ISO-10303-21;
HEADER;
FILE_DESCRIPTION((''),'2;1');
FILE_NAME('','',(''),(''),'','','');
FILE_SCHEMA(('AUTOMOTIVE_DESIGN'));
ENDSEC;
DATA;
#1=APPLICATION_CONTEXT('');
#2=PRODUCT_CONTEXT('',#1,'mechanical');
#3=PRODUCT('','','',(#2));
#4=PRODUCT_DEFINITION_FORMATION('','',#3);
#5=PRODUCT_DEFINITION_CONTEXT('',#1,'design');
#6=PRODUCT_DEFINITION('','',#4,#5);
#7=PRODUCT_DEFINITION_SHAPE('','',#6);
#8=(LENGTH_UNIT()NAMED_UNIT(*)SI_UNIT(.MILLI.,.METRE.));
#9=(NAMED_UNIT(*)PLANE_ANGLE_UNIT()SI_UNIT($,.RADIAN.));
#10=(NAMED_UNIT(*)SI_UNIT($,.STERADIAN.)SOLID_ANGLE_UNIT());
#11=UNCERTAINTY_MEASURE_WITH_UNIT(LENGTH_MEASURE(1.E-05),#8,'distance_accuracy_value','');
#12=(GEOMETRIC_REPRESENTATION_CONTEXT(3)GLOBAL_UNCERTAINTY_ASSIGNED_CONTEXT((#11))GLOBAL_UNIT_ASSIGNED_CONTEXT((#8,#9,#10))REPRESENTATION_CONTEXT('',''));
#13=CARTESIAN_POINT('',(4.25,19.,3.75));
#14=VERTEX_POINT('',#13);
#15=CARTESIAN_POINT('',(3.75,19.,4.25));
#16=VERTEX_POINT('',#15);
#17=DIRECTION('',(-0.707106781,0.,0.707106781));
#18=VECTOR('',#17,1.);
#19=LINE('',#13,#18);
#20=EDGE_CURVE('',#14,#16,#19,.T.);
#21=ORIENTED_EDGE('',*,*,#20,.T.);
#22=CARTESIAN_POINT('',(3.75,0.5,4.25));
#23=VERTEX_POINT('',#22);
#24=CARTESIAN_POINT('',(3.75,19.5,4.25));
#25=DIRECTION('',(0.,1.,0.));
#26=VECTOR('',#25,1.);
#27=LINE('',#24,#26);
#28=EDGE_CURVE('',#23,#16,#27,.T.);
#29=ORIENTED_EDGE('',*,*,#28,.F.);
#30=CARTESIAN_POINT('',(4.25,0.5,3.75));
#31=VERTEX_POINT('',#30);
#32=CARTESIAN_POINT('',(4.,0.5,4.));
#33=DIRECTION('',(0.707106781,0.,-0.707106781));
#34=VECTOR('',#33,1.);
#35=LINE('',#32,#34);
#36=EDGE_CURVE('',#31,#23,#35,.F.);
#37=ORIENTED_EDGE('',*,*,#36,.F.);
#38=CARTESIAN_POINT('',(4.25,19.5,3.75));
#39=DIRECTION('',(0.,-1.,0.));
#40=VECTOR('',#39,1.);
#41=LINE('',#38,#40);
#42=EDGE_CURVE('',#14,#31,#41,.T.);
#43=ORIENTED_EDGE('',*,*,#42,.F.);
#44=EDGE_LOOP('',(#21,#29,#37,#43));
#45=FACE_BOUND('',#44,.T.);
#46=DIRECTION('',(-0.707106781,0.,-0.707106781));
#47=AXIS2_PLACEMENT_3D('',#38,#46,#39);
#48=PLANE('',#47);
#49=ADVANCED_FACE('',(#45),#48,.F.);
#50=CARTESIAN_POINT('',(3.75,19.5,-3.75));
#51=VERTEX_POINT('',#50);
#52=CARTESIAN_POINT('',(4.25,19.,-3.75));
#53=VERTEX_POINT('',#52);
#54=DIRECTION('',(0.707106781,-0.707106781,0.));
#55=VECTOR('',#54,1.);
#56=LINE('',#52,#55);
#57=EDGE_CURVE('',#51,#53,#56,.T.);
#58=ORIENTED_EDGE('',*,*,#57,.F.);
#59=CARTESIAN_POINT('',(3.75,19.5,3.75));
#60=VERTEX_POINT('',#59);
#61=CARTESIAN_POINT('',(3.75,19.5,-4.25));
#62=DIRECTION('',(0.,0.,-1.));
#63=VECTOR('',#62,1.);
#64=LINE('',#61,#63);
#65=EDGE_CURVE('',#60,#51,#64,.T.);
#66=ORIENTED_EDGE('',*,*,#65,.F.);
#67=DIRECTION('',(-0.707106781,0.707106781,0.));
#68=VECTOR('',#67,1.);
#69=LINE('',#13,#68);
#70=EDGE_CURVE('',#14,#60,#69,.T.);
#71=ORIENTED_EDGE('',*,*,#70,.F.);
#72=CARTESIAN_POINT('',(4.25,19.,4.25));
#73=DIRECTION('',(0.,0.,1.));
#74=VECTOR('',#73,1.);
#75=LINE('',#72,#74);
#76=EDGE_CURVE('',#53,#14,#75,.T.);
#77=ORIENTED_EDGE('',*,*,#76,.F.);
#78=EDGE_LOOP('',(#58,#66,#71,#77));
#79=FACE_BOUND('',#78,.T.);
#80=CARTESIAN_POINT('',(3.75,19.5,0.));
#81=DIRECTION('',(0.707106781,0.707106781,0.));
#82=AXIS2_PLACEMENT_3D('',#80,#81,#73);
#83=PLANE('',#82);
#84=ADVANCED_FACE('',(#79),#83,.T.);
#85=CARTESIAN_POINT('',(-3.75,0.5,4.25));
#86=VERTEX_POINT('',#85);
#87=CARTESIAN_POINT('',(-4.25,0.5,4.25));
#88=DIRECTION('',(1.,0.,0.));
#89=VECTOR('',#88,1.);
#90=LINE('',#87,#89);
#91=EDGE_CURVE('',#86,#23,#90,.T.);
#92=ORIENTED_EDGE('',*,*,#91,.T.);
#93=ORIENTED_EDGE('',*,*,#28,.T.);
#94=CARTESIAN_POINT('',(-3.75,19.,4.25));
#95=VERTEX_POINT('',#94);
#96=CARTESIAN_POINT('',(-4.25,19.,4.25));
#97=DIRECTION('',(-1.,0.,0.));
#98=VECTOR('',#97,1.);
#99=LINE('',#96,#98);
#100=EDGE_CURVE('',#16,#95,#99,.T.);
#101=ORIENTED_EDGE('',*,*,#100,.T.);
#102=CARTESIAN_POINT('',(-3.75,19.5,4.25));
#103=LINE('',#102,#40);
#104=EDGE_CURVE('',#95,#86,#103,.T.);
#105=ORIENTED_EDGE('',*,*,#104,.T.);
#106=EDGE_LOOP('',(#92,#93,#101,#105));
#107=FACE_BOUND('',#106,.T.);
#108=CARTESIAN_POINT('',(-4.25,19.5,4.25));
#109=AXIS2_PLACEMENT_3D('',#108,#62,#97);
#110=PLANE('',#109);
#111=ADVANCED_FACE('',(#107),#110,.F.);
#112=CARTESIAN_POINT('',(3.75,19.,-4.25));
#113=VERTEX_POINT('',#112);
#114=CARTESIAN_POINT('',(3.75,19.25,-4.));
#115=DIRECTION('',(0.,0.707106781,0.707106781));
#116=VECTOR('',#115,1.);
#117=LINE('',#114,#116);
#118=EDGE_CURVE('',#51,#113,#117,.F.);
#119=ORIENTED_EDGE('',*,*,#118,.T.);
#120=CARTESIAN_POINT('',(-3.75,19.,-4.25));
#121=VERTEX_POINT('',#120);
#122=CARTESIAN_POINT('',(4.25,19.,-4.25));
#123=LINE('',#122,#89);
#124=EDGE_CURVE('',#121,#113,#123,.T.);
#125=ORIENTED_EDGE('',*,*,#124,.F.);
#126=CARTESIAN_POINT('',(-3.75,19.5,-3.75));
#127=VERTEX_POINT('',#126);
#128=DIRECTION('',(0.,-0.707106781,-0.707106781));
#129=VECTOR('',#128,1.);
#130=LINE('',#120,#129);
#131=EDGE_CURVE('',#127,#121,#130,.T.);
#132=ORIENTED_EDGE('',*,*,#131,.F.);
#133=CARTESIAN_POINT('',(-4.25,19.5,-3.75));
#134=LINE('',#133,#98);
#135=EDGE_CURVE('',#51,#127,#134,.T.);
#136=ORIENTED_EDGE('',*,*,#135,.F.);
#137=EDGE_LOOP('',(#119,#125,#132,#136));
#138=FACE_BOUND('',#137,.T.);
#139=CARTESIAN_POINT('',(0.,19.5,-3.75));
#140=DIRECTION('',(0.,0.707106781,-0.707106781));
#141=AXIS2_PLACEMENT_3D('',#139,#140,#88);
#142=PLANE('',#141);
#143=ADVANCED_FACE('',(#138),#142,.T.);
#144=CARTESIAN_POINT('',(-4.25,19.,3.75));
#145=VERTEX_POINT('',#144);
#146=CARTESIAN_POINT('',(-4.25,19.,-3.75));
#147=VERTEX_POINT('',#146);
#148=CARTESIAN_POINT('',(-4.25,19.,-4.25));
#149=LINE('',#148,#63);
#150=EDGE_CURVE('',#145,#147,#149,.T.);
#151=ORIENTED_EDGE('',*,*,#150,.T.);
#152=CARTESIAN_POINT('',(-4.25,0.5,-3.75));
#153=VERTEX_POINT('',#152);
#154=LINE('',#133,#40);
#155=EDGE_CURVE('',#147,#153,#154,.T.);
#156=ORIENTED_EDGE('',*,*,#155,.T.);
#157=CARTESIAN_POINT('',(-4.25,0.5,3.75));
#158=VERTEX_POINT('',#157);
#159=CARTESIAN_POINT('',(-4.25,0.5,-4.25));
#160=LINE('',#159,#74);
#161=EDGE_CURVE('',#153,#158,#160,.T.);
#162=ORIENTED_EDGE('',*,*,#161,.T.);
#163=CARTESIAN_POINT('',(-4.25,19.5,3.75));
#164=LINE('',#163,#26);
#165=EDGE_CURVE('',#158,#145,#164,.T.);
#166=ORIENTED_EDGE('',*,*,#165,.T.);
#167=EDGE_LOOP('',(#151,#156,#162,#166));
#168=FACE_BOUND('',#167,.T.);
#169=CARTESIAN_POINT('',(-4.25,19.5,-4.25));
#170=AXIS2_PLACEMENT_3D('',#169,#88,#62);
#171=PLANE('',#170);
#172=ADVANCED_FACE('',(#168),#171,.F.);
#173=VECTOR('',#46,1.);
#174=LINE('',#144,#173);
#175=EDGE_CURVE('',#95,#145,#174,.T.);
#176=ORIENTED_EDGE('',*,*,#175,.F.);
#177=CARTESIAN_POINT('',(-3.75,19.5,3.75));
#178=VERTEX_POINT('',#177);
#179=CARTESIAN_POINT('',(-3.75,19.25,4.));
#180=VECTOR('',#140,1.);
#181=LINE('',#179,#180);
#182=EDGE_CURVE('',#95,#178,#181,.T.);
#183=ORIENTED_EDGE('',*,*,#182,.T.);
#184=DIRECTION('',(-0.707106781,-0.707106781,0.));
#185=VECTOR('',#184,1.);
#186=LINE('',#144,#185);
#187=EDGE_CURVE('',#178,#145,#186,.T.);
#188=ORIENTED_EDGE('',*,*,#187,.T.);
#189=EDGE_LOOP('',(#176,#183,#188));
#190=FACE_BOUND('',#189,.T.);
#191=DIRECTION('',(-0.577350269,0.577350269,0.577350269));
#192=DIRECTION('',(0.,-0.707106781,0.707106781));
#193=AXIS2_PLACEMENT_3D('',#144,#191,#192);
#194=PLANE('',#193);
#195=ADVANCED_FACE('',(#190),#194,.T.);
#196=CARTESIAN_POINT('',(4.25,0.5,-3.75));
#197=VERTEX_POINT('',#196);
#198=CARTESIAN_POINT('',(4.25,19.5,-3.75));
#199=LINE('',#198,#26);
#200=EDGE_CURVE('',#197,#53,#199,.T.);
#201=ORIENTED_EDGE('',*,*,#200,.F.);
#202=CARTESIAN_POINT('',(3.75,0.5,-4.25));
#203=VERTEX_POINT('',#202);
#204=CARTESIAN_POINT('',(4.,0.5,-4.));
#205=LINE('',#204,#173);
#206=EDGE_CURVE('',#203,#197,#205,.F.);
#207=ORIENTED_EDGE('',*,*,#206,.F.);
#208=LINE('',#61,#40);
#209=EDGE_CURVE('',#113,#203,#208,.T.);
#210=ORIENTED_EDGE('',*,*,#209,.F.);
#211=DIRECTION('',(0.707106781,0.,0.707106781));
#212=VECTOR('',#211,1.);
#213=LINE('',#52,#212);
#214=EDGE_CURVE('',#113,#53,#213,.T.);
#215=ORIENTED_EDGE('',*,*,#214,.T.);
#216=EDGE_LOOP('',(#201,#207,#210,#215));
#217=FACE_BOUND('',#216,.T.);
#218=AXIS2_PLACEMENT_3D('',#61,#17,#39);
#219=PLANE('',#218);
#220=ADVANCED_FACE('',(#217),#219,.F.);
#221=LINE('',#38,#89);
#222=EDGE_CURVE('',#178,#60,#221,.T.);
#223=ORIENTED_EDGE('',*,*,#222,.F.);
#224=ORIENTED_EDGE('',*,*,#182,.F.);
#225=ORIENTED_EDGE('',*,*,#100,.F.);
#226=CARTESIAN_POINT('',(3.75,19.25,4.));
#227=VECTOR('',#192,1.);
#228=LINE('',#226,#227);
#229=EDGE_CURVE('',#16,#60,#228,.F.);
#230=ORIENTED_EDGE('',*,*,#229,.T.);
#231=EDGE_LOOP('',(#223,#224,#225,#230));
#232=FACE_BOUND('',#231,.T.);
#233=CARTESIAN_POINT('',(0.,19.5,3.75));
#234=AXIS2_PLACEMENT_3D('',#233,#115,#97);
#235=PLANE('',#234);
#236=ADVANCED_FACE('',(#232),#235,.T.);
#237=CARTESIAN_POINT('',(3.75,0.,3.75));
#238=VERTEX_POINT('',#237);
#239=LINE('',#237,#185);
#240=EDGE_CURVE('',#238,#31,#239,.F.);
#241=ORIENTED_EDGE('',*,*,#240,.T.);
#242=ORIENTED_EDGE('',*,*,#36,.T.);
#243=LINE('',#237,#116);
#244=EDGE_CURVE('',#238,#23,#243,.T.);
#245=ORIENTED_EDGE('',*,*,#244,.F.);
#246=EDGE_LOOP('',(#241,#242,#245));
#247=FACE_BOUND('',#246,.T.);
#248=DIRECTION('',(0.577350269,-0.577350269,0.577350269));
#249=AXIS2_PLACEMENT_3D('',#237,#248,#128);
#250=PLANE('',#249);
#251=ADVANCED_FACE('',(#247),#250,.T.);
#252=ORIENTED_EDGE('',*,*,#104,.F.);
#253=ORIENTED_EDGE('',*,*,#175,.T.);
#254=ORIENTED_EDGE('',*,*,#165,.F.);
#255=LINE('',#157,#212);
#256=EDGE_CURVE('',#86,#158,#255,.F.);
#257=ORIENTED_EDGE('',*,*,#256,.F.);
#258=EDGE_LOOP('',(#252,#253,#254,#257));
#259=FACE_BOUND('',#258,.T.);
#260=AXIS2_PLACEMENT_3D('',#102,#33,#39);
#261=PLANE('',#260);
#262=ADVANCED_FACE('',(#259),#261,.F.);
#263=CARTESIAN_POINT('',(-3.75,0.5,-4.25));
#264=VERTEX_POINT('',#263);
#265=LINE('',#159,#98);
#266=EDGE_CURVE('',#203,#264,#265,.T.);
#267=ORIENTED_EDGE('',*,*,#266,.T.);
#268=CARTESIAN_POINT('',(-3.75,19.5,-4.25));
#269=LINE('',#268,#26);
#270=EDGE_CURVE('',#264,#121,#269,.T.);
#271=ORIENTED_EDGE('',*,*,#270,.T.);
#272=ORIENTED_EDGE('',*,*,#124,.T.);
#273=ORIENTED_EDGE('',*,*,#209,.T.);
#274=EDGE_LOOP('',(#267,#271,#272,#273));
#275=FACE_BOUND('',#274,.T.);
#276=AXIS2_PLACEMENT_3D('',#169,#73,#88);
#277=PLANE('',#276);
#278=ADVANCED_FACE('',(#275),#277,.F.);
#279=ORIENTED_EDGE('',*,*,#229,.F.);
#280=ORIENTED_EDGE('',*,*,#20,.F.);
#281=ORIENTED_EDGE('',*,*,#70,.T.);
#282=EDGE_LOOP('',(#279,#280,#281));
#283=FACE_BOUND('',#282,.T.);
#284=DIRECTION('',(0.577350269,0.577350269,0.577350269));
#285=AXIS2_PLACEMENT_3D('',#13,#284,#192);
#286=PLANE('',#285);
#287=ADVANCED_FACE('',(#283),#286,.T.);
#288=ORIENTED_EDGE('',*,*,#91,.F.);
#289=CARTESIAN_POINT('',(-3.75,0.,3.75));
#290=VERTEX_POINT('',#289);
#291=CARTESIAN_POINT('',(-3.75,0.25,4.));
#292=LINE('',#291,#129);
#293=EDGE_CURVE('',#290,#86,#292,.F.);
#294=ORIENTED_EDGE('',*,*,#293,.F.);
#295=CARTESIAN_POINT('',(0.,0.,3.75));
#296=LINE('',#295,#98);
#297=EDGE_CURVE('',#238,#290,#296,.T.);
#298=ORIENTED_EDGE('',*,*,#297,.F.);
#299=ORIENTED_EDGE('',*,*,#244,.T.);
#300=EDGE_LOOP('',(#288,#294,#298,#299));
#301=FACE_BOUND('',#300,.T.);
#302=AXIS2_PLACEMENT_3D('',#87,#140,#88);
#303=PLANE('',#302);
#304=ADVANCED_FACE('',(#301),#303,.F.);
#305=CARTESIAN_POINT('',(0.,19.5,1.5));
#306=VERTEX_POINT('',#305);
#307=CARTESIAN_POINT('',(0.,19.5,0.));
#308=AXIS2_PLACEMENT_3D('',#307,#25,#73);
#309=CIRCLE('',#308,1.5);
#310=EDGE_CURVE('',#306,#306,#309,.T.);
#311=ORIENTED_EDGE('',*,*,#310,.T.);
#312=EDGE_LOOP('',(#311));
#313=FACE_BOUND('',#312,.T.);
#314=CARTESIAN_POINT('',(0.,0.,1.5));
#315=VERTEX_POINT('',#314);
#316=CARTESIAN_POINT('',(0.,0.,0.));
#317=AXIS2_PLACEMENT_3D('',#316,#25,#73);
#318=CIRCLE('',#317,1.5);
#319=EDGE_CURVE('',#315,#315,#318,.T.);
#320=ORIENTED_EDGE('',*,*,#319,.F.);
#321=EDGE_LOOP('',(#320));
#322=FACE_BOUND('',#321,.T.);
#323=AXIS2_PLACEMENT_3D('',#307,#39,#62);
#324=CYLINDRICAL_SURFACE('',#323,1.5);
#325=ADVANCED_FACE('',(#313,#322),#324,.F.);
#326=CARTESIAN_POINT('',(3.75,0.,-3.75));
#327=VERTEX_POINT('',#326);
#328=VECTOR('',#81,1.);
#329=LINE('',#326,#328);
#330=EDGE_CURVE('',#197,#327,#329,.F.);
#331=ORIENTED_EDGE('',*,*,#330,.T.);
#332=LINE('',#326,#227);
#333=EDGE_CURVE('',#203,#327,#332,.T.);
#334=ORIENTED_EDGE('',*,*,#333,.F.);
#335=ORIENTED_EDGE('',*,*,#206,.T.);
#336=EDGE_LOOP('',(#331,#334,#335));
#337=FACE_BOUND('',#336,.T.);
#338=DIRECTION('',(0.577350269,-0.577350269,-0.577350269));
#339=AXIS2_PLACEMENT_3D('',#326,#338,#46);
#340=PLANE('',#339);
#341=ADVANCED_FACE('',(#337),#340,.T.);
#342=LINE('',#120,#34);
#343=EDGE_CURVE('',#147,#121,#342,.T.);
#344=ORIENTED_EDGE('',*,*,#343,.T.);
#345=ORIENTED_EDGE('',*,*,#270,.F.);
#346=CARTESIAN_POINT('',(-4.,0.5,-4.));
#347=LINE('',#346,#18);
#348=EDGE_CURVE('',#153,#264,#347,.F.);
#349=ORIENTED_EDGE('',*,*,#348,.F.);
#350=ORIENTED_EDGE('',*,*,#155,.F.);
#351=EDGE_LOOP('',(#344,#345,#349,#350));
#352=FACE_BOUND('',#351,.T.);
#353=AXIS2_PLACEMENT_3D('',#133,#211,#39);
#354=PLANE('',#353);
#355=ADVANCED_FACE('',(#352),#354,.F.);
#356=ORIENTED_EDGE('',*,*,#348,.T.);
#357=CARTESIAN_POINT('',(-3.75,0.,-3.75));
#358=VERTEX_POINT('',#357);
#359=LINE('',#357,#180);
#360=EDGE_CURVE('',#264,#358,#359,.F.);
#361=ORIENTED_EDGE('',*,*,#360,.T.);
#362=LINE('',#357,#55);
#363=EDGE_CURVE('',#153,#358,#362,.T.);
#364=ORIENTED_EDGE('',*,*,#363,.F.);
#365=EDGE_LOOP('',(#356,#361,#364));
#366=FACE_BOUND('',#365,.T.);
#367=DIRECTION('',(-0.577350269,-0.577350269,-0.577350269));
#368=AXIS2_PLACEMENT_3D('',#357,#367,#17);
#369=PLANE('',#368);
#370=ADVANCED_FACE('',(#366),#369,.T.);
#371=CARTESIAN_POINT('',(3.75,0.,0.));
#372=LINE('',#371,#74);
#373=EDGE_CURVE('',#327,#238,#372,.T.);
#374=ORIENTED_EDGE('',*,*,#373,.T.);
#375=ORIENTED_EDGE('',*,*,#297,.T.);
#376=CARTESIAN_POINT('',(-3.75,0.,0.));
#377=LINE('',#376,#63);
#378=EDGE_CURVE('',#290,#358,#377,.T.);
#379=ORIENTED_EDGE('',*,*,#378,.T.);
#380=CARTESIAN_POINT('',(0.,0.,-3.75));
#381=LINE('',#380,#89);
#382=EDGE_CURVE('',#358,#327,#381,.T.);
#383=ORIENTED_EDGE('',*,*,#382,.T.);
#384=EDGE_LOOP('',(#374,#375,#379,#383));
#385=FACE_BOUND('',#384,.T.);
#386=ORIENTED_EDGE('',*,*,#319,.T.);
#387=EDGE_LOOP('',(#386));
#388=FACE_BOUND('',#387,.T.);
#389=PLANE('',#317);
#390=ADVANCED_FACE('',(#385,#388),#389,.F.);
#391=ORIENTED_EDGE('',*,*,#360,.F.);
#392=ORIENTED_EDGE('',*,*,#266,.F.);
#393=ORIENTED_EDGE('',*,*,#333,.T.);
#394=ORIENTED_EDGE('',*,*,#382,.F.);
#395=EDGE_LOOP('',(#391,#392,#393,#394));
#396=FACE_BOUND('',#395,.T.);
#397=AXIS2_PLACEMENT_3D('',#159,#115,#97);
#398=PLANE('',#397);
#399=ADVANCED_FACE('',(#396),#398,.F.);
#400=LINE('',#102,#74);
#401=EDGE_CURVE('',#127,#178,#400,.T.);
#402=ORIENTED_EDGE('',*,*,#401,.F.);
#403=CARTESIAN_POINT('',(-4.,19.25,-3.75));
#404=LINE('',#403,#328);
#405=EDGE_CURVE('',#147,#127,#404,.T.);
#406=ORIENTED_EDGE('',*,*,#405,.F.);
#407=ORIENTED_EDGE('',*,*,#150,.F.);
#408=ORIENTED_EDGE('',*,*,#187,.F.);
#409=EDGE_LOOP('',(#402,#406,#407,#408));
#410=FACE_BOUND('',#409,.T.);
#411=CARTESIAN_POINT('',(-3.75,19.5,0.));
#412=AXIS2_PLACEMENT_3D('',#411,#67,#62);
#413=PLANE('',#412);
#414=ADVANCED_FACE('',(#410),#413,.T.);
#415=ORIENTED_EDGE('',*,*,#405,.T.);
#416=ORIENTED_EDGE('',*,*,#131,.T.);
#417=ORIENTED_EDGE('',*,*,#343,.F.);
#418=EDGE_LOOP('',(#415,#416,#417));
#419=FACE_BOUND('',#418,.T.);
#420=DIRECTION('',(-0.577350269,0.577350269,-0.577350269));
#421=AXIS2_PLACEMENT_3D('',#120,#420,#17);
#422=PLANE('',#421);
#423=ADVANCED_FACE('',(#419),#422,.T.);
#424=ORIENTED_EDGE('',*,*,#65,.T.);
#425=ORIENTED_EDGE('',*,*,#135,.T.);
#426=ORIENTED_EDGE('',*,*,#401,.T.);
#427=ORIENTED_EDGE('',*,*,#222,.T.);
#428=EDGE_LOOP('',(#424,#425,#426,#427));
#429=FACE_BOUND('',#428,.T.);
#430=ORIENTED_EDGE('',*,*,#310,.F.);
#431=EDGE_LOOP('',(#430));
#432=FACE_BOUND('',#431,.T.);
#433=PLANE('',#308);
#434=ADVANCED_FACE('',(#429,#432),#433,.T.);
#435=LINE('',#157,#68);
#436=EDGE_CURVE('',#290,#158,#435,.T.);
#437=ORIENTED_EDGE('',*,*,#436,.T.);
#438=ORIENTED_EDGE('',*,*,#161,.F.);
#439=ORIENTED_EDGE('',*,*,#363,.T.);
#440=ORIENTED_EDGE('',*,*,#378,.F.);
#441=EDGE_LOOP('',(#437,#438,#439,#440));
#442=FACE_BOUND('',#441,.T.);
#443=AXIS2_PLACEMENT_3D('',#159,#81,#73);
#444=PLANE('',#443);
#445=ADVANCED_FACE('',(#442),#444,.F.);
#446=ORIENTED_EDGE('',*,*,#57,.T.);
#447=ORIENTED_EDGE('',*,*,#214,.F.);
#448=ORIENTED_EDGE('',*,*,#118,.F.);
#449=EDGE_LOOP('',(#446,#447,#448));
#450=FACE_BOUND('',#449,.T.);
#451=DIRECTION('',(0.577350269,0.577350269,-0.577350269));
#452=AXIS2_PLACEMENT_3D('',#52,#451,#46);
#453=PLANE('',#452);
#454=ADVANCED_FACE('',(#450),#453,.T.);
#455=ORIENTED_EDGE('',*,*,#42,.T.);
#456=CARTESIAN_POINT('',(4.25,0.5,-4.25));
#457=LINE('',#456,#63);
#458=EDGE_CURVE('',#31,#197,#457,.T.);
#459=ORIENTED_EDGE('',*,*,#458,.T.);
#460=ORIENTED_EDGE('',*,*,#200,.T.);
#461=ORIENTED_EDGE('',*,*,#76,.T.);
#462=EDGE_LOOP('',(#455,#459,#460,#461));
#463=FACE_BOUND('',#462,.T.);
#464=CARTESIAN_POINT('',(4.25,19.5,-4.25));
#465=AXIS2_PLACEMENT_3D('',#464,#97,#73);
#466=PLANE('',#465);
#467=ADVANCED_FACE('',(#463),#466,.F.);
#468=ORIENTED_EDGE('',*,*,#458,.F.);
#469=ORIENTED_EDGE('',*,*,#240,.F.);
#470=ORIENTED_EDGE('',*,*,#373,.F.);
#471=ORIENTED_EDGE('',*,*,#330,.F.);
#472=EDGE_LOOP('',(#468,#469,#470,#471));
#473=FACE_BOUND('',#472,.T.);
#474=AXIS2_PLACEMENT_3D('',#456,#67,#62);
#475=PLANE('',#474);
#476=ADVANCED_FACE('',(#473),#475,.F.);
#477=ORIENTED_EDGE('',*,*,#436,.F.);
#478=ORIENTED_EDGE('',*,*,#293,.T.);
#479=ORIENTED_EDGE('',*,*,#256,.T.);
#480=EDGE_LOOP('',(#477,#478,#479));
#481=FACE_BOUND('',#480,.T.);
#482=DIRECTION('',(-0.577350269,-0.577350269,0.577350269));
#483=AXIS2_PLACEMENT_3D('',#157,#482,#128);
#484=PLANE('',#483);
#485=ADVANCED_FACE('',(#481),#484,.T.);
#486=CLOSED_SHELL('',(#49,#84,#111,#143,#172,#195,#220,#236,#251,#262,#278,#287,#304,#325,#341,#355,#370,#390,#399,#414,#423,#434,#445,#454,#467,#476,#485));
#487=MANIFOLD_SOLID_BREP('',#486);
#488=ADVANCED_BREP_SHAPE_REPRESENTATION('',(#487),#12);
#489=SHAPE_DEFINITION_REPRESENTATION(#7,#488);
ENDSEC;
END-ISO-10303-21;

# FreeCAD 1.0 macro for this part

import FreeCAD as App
import Part
import Sketcher
Q = App.Units.Quantity


def edges_at(feature, points):
    """Names of the edges that pass closest to the given points."""
    edges = feature.Shape.Edges
    near = lambda p: min(range(len(edges)), key=lambda i: edges[i].distToShape(Part.Vertex(*p))[0])
    return sorted({f"Edge{near(p) + 1}" for p in points})


def add_polygon(sketch, points):
    """Adds a closed chain of lines whose ends are joined by coincident constraints."""
    first, n = sketch.GeometryCount, len(points)
    for a, b in zip(points, points[1:] + points[:1]):
        sketch.addGeometry(Part.LineSegment(App.Vector(*a, 0), App.Vector(*b, 0)), False)
    for i in range(n):
        sketch.addConstraint(Sketcher.Constraint("Coincident", first + i, 2, first + (i + 1) % n, 1))

doc = App.newDocument("Part")
params = doc.addObject("Spreadsheet::Sheet", "Params")
for row, (alias, value) in enumerate([
    ("sketch1_diameter", "3 mm"),
    ("sketch1_width", "8.5 mm"),
    ("pad1_length", "19.5 mm"),
    ("chamfer_size", "0.5 mm"),
], start=1):
    params.set(f"A{row}", alias)
    params.set(f"B{row}", "=" + value)
    params.setAlias(f"B{row}", alias)

body = doc.addObject("PartDesign::Body", "Body")

# Sketch on XZ plane
sketch1 = body.newObject("Sketcher::SketchObject", "Sketch")
sketch1.AttachmentSupport = (doc.getObject("XZ_Plane"), [""])
sketch1.MapMode = "FlatFace"
add_polygon(sketch1, [(-4.2, -4.2), (-4.2, 4.2), (4.2, 4.2), (4.2, -4.2)])  # lines 0-3
sketch1.addGeometry(Part.Circle(App.Vector(0, 0, 0), App.Vector(0, 0, 1), 1.5), False)  # 4
sketch1.addConstraint([
    Sketcher.Constraint("Vertical", 0),
    Sketcher.Constraint("Horizontal", 1),
    Sketcher.Constraint("Vertical", 2),
    Sketcher.Constraint("Horizontal", 3),
    Sketcher.Constraint("Coincident", 4, 3, -1, 1),
    Sketcher.Constraint("Symmetric", 0, 2, 2, 2, -1, 1),
    Sketcher.Constraint("Equal", 3, 0),
    Sketcher.Constraint("Diameter", 4, Q("3 mm")),
    Sketcher.Constraint("DistanceX", 1, 1, 1, 2, Q("8.5 mm")),
])
sketch1.setExpression("Constraints[11]", "Params.sketch1_diameter")
sketch1.setExpression("Constraints[12]", "Params.sketch1_width")
pad1 = body.newObject("PartDesign::Pad", "Pad")
pad1.Profile = sketch1
pad1.setExpression("Length", "Params.pad1_length")
pad1.Reversed = True
doc.recompute()

chamfer = body.newObject("PartDesign::Chamfer", "Chamfer")
chamfer.Base = (pad1, edges_at(pad1, [
    (-4.25, 19.5, 0),
    (0, 19.5, 4.25),
    (4.25, 19.5, 0),
    (0, 0, 4.25),
    (-4.25, 0, 0),
    (0, 0, -4.25),
    (4.25, 0, 0),
    (4.25, 9.75, 4.25),
    (-4.25, 9.75, 4.25),
    (-4.25, 9.75, -4.25),
    (4.25, 9.75, -4.25),
    (0, 19.5, -4.25),
]))
chamfer.setExpression("Size", "Params.chamfer_size")

doc.recompute()
